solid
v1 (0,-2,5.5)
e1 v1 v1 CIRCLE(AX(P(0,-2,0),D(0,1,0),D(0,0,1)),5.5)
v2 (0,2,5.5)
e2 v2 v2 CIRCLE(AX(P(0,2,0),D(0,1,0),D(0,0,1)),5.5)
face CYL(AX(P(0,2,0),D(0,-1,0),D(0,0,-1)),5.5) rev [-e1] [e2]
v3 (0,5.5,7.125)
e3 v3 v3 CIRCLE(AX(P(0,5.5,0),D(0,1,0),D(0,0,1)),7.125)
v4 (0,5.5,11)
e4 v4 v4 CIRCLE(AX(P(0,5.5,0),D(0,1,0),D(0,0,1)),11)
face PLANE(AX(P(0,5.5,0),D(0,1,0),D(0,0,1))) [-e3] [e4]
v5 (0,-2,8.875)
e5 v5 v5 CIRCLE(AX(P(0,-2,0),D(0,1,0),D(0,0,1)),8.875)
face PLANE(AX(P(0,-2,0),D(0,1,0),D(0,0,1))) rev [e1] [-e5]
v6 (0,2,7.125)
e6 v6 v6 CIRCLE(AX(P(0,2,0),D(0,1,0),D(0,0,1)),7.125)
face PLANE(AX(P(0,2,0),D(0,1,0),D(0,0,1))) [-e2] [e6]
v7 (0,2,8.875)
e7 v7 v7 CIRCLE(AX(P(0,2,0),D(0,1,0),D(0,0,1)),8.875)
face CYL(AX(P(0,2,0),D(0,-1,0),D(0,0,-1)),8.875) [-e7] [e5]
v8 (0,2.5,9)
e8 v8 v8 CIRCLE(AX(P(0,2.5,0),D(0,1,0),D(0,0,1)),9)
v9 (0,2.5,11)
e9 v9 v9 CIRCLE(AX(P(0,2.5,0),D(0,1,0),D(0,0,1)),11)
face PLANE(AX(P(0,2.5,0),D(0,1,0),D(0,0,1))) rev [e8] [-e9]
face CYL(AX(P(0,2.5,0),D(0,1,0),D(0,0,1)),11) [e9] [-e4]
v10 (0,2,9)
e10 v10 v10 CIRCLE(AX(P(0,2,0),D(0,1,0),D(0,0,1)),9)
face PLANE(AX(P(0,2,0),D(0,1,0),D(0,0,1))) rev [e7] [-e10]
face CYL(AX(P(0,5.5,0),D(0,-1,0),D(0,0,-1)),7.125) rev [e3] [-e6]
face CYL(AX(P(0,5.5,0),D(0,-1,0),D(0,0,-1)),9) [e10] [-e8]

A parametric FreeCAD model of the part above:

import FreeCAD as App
import Part
import Sketcher
Q = App.Units.Quantity

doc = App.newDocument("Part")
body = doc.addObject("PartDesign::Body", "Body")

# Sketch on XZ plane
sketch1 = body.newObject("Sketcher::SketchObject", "Sketch")
sketch1.AttachmentSupport = (doc.getObject("XZ_Plane"), [""])
sketch1.MapMode = "FlatFace"
sketch1.addGeometry([
    Part.Circle(App.Vector(0, 0, 0), App.Vector(0, 0, 1), 9),
    Part.Circle(App.Vector(0, 0, 0), App.Vector(0, 0, 1), 6),
], False)
sketch1.addConstraint([
    Sketcher.Constraint("Coincident", 0, 3, -1, 1),
    Sketcher.Constraint("Coincident", 1, 3, -1, 1),
    Sketcher.Constraint("Diameter", 1, Q("11 mm")),
    Sketcher.Constraint("Diameter", 0, Q("17.75 mm")),
])
pad1 = body.newObject("PartDesign::Pad", "Pad")
pad1.Profile = sketch1
pad1.Length = 4
pad1.Midplane = True

# Sketch on XZ plane
sketch2 = body.newObject("Sketcher::SketchObject", "Sketch001")
sketch2.AttachmentSupport = (doc.getObject("XZ_Plane"), [""])
sketch2.MapMode = "FlatFace"
sketch2.AttachmentOffset = App.Placement(App.Vector(0, 0, -2), App.Rotation())
sketch2.addGeometry([
    Part.Circle(App.Vector(0, 0, 0), App.Vector(0, 0, 1), 9),
    Part.Circle(App.Vector(0, 0, 0), App.Vector(0, 0, 1), 7),
], False)
sketch2.addConstraint([
    Sketcher.Constraint("Coincident", 0, 3, -1, 1),
    Sketcher.Constraint("Coincident", 1, 3, -1, 1),
    Sketcher.Constraint("Diameter", 0, Q("18 mm")),
    Sketcher.Constraint("Diameter", 1, Q("14.25 mm")),
])
pad2 = body.newObject("PartDesign::Pad", "Pad001")
pad2.Profile = sketch2
pad2.Length = 3.5
pad2.Reversed = True

# Sketch on XZ plane
sketch3 = body.newObject("Sketcher::SketchObject", "Sketch002")
sketch3.AttachmentSupport = (doc.getObject("XZ_Plane"), [""])
sketch3.MapMode = "FlatFace"
sketch3.AttachmentOffset = App.Placement(App.Vector(0, 0, -5.5), App.Rotation())
sketch3.addGeometry([
    Part.Circle(App.Vector(0, 0, 0), App.Vector(0, 0, 1), 11),
    Part.Circle(App.Vector(0, 0, 0), App.Vector(0, 0, 1), 9),
], False)
sketch3.addConstraint([
    Sketcher.Constraint("Coincident", 0, 3, -1, 1),
    Sketcher.Constraint("Coincident", 1, 3, -1, 1),
    Sketcher.Constraint("Diameter", 0, Q("22 mm")),
    Sketcher.Constraint("Diameter", 1, Q("18 mm")),
])
pad3 = body.newObject("PartDesign::Pad", "Pad002")
pad3.Profile = sketch3
pad3.Length = 3

doc.recompute()
